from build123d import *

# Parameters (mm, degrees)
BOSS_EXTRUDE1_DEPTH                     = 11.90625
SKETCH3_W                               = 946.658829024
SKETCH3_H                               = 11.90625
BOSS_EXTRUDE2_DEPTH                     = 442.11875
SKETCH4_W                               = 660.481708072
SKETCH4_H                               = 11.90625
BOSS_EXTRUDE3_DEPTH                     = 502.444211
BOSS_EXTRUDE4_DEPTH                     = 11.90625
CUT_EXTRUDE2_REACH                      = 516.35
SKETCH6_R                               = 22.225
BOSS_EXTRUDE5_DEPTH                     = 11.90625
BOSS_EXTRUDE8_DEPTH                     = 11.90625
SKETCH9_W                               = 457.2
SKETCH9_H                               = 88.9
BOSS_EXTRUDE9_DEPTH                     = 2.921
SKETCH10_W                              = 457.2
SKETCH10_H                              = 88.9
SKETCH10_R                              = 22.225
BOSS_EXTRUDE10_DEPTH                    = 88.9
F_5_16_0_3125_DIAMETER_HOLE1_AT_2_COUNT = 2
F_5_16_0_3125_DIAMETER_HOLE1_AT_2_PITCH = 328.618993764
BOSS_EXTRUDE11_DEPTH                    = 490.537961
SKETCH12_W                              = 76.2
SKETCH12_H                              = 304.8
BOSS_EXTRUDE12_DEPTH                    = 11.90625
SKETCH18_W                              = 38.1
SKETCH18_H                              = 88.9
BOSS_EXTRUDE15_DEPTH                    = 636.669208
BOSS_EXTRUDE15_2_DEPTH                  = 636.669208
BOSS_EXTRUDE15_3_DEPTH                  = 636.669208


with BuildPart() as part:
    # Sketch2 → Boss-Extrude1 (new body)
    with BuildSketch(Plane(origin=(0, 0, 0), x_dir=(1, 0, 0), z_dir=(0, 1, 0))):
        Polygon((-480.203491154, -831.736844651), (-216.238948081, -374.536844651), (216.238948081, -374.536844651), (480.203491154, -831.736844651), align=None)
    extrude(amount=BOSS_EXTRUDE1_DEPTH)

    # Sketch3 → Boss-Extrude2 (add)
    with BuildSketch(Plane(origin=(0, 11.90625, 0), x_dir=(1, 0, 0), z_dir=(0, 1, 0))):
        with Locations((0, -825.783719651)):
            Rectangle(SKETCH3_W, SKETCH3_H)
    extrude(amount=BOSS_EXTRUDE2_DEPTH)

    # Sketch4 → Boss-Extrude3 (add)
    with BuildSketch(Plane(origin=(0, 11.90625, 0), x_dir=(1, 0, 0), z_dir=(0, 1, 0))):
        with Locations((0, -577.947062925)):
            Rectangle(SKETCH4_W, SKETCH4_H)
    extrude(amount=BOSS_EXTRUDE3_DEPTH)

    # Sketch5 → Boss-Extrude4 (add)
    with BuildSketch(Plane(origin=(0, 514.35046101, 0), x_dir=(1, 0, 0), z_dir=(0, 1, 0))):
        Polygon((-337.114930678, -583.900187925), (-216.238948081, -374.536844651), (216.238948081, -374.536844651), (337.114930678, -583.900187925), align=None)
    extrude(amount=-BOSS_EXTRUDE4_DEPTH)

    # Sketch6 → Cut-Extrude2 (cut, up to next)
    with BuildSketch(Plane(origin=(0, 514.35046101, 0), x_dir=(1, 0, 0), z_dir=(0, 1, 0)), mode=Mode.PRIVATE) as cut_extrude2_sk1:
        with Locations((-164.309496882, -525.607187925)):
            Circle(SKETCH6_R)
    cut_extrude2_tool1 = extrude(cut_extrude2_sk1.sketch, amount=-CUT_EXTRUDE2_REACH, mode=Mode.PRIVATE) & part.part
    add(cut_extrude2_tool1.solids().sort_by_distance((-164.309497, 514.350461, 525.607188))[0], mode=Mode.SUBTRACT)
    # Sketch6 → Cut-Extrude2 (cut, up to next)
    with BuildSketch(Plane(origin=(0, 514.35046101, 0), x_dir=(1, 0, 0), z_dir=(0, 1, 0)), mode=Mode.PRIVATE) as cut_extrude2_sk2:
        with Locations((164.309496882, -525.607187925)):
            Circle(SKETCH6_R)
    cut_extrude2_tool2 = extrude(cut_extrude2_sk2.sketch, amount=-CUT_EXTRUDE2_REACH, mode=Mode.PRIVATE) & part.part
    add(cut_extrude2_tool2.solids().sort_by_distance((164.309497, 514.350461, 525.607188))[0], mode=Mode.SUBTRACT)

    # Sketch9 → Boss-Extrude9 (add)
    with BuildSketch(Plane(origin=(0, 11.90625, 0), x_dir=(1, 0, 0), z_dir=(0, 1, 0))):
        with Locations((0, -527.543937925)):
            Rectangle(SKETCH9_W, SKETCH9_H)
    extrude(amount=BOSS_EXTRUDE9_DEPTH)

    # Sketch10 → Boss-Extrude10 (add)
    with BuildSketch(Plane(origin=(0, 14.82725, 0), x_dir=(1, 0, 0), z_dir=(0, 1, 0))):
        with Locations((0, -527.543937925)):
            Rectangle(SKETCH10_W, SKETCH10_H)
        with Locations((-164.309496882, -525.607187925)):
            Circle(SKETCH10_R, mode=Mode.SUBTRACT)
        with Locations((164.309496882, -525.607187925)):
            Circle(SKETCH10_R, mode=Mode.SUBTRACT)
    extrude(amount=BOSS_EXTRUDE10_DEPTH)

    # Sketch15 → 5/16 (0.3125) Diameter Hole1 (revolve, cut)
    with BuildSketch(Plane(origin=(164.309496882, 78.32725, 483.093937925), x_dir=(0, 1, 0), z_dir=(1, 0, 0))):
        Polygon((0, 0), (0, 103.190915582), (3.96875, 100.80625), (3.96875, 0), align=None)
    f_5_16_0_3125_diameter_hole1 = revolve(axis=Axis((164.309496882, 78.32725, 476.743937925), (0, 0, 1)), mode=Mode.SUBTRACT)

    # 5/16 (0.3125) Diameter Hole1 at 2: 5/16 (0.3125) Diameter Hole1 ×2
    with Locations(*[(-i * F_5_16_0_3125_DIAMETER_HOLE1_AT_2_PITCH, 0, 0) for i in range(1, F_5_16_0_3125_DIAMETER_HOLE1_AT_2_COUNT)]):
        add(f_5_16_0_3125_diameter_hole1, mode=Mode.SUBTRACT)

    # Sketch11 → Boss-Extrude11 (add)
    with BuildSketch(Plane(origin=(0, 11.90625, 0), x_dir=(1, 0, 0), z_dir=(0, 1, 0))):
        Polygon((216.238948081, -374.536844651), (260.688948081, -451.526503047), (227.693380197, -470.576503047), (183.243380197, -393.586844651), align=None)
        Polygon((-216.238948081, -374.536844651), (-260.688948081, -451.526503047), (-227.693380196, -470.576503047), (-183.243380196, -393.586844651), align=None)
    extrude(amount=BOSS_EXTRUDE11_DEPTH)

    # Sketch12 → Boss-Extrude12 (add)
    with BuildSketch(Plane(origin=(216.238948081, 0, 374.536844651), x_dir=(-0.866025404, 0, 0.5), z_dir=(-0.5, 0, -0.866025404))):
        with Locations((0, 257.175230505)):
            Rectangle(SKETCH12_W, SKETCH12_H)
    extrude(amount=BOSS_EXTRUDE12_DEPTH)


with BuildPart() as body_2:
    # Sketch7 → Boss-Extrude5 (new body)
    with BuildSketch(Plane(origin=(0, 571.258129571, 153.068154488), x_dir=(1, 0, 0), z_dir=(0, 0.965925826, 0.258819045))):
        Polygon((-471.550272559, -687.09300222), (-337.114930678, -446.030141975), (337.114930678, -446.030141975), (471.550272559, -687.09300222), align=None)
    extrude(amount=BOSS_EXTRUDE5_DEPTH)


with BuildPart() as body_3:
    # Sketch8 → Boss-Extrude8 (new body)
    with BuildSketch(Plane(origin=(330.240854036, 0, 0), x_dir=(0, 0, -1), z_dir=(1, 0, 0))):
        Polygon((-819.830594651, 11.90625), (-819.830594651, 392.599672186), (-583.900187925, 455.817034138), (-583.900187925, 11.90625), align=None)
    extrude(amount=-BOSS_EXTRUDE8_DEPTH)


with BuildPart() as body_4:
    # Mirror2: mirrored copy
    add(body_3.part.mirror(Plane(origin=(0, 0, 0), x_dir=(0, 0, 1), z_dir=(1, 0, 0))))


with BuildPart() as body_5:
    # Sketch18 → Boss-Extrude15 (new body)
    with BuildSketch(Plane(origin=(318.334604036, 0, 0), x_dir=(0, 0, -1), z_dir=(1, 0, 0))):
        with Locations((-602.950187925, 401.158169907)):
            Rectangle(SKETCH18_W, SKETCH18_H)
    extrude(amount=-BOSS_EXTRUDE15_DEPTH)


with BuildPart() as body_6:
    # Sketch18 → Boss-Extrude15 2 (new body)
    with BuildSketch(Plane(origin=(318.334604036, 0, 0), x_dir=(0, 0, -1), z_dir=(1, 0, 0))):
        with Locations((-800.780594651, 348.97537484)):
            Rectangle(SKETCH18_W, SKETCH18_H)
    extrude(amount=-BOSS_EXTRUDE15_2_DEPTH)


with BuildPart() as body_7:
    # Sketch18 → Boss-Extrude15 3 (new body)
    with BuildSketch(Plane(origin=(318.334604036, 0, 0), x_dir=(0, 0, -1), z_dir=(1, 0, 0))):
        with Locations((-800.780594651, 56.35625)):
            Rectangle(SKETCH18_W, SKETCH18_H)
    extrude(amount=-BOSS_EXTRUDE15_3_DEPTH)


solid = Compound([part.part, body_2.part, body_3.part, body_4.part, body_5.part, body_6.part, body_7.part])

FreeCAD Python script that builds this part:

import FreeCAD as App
import Part
import Sketcher
Q = App.Units.Quantity


def add_polygon(sketch, points):
    """Adds a closed chain of lines whose ends are joined by coincident constraints."""
    first, n = sketch.GeometryCount, len(points)
    for a, b in zip(points, points[1:] + points[:1]):
        sketch.addGeometry(Part.LineSegment(App.Vector(*a, 0), App.Vector(*b, 0)), False)
    for i in range(n):
        sketch.addConstraint(Sketcher.Constraint("Coincident", first + i, 2, first + (i + 1) % n, 1))

doc = App.newDocument("Part")
body = doc.addObject("PartDesign::Body", "Body")

# Sketch on XZ plane
sketch1 = body.newObject("Sketcher::SketchObject", "Sketch")
sketch1.AttachmentSupport = (doc.getObject("XZ_Plane"), [""])
sketch1.MapMode = "FlatFace"
add_polygon(sketch1, [(-216, 375), (-480, 832), (480, 832), (216, 375)])  # lines 0-3
sketch1.addConstraint([
    Sketcher.Constraint("Horizontal", 1),
    Sketcher.Constraint("Horizontal", 3),
    Sketcher.Constraint("Equal", 0, 2),
    Sketcher.Constraint("Angle", 0, Q("120 deg")),
    Sketcher.Constraint("DistanceY", 2, 2, 1, 2, Q("18 in")),
    Sketcher.Constraint("DistanceX", 1, 1, 1, 2, Q("960.406982 mm")),
    Sketcher.Constraint("DistanceX", 0, 2, -1, 1, Q("480.203491 mm")),
    Sketcher.Constraint("DistanceY", -1, 1, 0, 2, Q("831.736845 mm")),
])
pad1 = body.newObject("PartDesign::Pad", "Pad")
pad1.Profile = sketch1
pad1.Length = Q("0.46875 in")
pad1.Reversed = True

# Sketch on XZ plane
sketch2 = body.newObject("Sketcher::SketchObject", "Sketch001")
sketch2.AttachmentSupport = (doc.getObject("XZ_Plane"), [""])
sketch2.MapMode = "FlatFace"
sketch2.AttachmentOffset = App.Placement(App.Vector(0, 0, -0.46875 * 25.4), App.Rotation())
add_polygon(sketch2, [(-473, 820), (-473, 832), (473, 832), (473, 820)])  # lines 0-3
sketch2.addConstraint([
    Sketcher.Constraint("Vertical", 0),
    Sketcher.Constraint("Horizontal", 1),
    Sketcher.Constraint("Vertical", 2),
    Sketcher.Constraint("Horizontal", 3),
    Sketcher.Constraint("DistanceY", 0, 1, 0, 2, Q("0.46875 in")),
    Sketcher.Constraint("DistanceX", 1, 1, 1, 2, Q("946.658829 mm")),
    Sketcher.Constraint("DistanceX", 0, 2, -1, 1, Q("473.329415 mm")),
    Sketcher.Constraint("DistanceY", -1, 1, 0, 2, Q("831.736845 mm")),
])
pad2 = body.newObject("PartDesign::Pad", "Pad001")
pad2.Profile = sketch2
pad2.Length = Q("17.40625 in")
pad2.Reversed = True

# Sketch on XZ plane
sketch3 = body.newObject("Sketcher::SketchObject", "Sketch002")
sketch3.AttachmentSupport = (doc.getObject("XZ_Plane"), [""])
sketch3.MapMode = "FlatFace"
sketch3.AttachmentOffset = App.Placement(App.Vector(0, 0, -0.46875 * 25.4), App.Rotation())
add_polygon(sketch3, [(-330, 572), (-330, 584), (330, 584), (330, 572)])  # lines 0-3
sketch3.addConstraint([
    Sketcher.Constraint("Vertical", 0),
    Sketcher.Constraint("Horizontal", 1),
    Sketcher.Constraint("Vertical", 2),
    Sketcher.Constraint("Horizontal", 3),
    Sketcher.Constraint("DistanceY", 0, 1, 0, 2, Q("0.46875 in")),
    Sketcher.Constraint("DistanceX", 1, 1, 1, 2, Q("660.481708 mm")),
    Sketcher.Constraint("DistanceX", 0, 2, -1, 1, Q("330.240854 mm")),
    Sketcher.Constraint("DistanceY", -1, 1, 0, 2, Q("583.900188 mm")),
])
pad3 = body.newObject("PartDesign::Pad", "Pad002")
pad3.Profile = sketch3
pad3.Length = 502.444211
pad3.Reversed = True

# Sketch on XZ plane
sketch4 = body.newObject("Sketcher::SketchObject", "Sketch003")
sketch4.AttachmentSupport = (doc.getObject("XZ_Plane"), [""])
sketch4.MapMode = "FlatFace"
sketch4.AttachmentOffset = App.Placement(App.Vector(0, 0, -514.350461), App.Rotation())
add_polygon(sketch4, [(-216, 375), (-337, 584), (337, 584), (216, 375)])  # lines 0-3
sketch4.addConstraint([
    Sketcher.Constraint("Horizontal", 1),
    Sketcher.Constraint("Horizontal", 3),
    Sketcher.Constraint("Equal", 0, 2),
    Sketcher.Constraint("Angle", 0, Q("120 deg")),
    Sketcher.Constraint("DistanceX", 1, 1, 1, 2, Q("674.229861 mm")),
    Sketcher.Constraint("DistanceX", 3, 2, 3, 1, Q("432.477896 mm")),
    Sketcher.Constraint("DistanceX", 0, 2, -1, 1, Q("337.114931 mm")),
    Sketcher.Constraint("DistanceY", -1, 1, 0, 2, Q("583.900188 mm")),
])
pad4 = body.newObject("PartDesign::Pad", "Pad003")
pad4.Profile = sketch4
pad4.Length = Q("0.46875 in")

# Sketch on XZ plane
sketch5 = body.newObject("Sketcher::SketchObject", "Sketch004")
sketch5.AttachmentSupport = (doc.getObject("XZ_Plane"), [""])
sketch5.MapMode = "FlatFace"
sketch5.AttachmentOffset = App.Placement(App.Vector(0, 0, -514.350461), App.Rotation())
sketch5.addGeometry(Part.Circle(App.Vector(-164, 526, 0), App.Vector(0, 0, 1), 22), False)
sketch5.addConstraint([
    Sketcher.Constraint("Diameter", 0, Q("1.75 in")),
    Sketcher.Constraint("DistanceX", 0, 3, -1, 1, Q("164.309497 mm")),
    Sketcher.Constraint("DistanceY", -1, 1, 0, 3, Q("525.607188 mm")),
])
pocket1 = body.newObject("PartDesign::Pocket", "Pocket")
pocket1.Profile = sketch5
pocket1.Type = "UpToFirst"
pocket1.Reversed = True

# Sketch on XZ plane
sketch6 = body.newObject("Sketcher::SketchObject", "Sketch005")
sketch6.AttachmentSupport = (doc.getObject("XZ_Plane"), [""])
sketch6.MapMode = "FlatFace"
sketch6.AttachmentOffset = App.Placement(App.Vector(0, 0, -514.350461), App.Rotation())
sketch6.addGeometry(Part.Circle(App.Vector(164, 526, 0), App.Vector(0, 0, 1), 22), False)
sketch6.addConstraint([
    Sketcher.Constraint("Diameter", 0, Q("1.75 in")),
    Sketcher.Constraint("DistanceX", -1, 1, 0, 3, Q("164.309497 mm")),
    Sketcher.Constraint("DistanceY", -1, 1, 0, 3, Q("525.607188 mm")),
])
pocket2 = body.newObject("PartDesign::Pocket", "Pocket001")
pocket2.Profile = sketch6
pocket2.Type = "UpToFirst"
pocket2.Reversed = True

# Sketch on XZ plane
sketch7 = body.newObject("Sketcher::SketchObject", "Sketch006")
sketch7.AttachmentSupport = (doc.getObject("XZ_Plane"), [""])
sketch7.MapMode = "FlatFace"
sketch7.AttachmentOffset = App.Placement(App.Vector(0, 0, -0.46875 * 25.4), App.Rotation())
add_polygon(sketch7, [(-229, 483), (-229, 572), (229, 572), (229, 483)])  # lines 0-3
sketch7.addConstraint([
    Sketcher.Constraint("Vertical", 0),
    Sketcher.Constraint("Horizontal", 1),
    Sketcher.Constraint("Vertical", 2),
    Sketcher.Constraint("Horizontal", 3),
    Sketcher.Constraint("DistanceX", 1, 1, 1, 2, Q("18 in")),
    Sketcher.Constraint("DistanceY", 0, 1, 0, 2, Q("3.5 in")),
    Sketcher.Constraint("DistanceX", 0, 2, -1, 1, Q("9 in")),
    Sketcher.Constraint("DistanceY", -1, 1, 0, 2, Q("571.993938 mm")),
])
pad5 = body.newObject("PartDesign::Pad", "Pad004")
pad5.Profile = sketch7
pad5.Length = Q("0.115 in")
pad5.Reversed = True

# Sketch on XZ plane
sketch8 = body.newObject("Sketcher::SketchObject", "Sketch007")
sketch8.AttachmentSupport = (doc.getObject("XZ_Plane"), [""])
sketch8.MapMode = "FlatFace"
sketch8.AttachmentOffset = App.Placement(App.Vector(0, 0, -14.82725), App.Rotation())
add_polygon(sketch8, [(-229, 483), (-229, 572), (229, 572), (229, 483)])  # lines 0-3
sketch8.addGeometry(Part.Circle(App.Vector(-164, 526, 0), App.Vector(0, 0, 1), 22), False)  # 4
sketch8.addGeometry(Part.Circle(App.Vector(164, 526, 0), App.Vector(0, 0, 1), 22), False)  # 5
sketch8.addConstraint([
    Sketcher.Constraint("Vertical", 0),
    Sketcher.Constraint("Horizontal", 1),
    Sketcher.Constraint("Vertical", 2),
    Sketcher.Constraint("Horizontal", 3),
    Sketcher.Constraint("Equal", 4, 5),
    Sketcher.Constraint("Symmetric", 4, 3, 5, 3, -2),
    Sketcher.Constraint("Diameter", 4, Q("1.75 in")),
    Sketcher.Constraint("DistanceX", 1, 1, 1, 2, Q("18 in")),
    Sketcher.Constraint("DistanceY", 0, 1, 0, 2, Q("3.5 in")),
    Sketcher.Constraint("DistanceX", 0, 2, -1, 1, Q("9 in")),
    Sketcher.Constraint("DistanceY", 4, 3, 0, 2, Q("46.38675 mm")),
    Sketcher.Constraint("DistanceX", 4, 3, -1, 1, Q("164.309497 mm")),
    Sketcher.Constraint("DistanceY", -1, 1, 4, 3, Q("525.607188 mm")),
])
pad6 = body.newObject("PartDesign::Pad", "Pad005")
pad6.Profile = sketch8
pad6.Length = Q("3.5 in")
pad6.Reversed = True

# Sketch on YZ plane
sketch9 = body.newObject("Sketcher::SketchObject", "Sketch008")
sketch9.AttachmentSupport = (doc.getObject("YZ_Plane"), [""])
sketch9.MapMode = "FlatFace"
sketch9.AttachmentOffset = App.Placement(App.Vector(0, 0, 164.309497), App.Rotation())
add_polygon(sketch9, [(78.3, 586.3), (78.3, 483.1), (82.3, 483.1), (82.3, 583.9)])  # lines 0-3
sketch9.addGeometry(Part.LineSegment(App.Vector(78.3, 483.1, 0), App.Vector(78.3, 586.3, 0)), True)  # axis
sketch9.addConstraint([
    Sketcher.Constraint("Vertical", 0),
    Sketcher.Constraint("Horizontal", 1),
    Sketcher.Constraint("Vertical", 2),
    Sketcher.Constraint("Vertical", 4),
    Sketcher.Constraint("Coincident", 4, 1, 0, 2),
    Sketcher.Constraint("Equal", 0, 4),
    Sketcher.Constraint("Angle", 3, Q("149 deg")),
    Sketcher.Constraint("DistanceX", 1, 1, 1, 2, Q("0.15625 in")),
    Sketcher.Constraint("DistanceY", 2, 1, 2, 2, Q("3.96875 in")),
    Sketcher.Constraint("DistanceX", -1, 1, 1, 2, Q("3.24 in")),
    Sketcher.Constraint("DistanceY", -1, 1, 0, 2, Q("483.093938 mm")),
])
groove = body.newObject("PartDesign::Groove", "Groove")
groove.Profile = sketch9
groove.ReferenceAxis = (sketch9, ["Axis0"])
groove.Angle = 360
doc.recompute()

linearpattern = body.newObject("PartDesign::LinearPattern", "LinearPattern")
linearpattern.Originals = [groove]
linearpattern.Direction = (doc.getObject("X_Axis"), [""])
linearpattern.Mode = "offset"
linearpattern.Offset = 328.618994
linearpattern.Occurrences = 2
linearpattern.Reversed = True
body.Tip = linearpattern

# Sketch on XZ plane
sketch10 = body.newObject("Sketcher::SketchObject", "Sketch009")
sketch10.AttachmentSupport = (doc.getObject("XZ_Plane"), [""])
sketch10.MapMode = "FlatFace"
sketch10.AttachmentOffset = App.Placement(App.Vector(0, 0, -0.46875 * 25.4), App.Rotation())
add_polygon(sketch10, [(261, 452), (216, 375), (183, 394), (228, 471)])  # lines 0-3
add_polygon(sketch10, [(-216, 375), (-261, 452), (-228, 471), (-183, 394)])  # lines 4-7
sketch10.addConstraint([
    Sketcher.Constraint("Symmetric", 3, 2, 4, 2, -2),
    Sketcher.Constraint("Symmetric", 2, 2, 5, 2, -2),
    Sketcher.Constraint("Symmetric", 1, 2, 6, 2, -2),
    Sketcher.Constraint("Symmetric", 0, 2, 7, 2, -2),
    Sketcher.Constraint("Perpendicular", 0, 1),
    Sketcher.Constraint("Perpendicular", 1, 2),
    Sketcher.Constraint("Perpendicular", 2, 3),
    Sketcher.Constraint("Angle", 0, Q("-120 deg")),
    Sketcher.Constraint("Distance", 0, Q("3.5 in")),
    Sketcher.Constraint("Distance", 1, Q("1.5 in")),
    Sketcher.Constraint("DistanceX", -1, 1, 0, 2, Q("216.238948 mm")),
    Sketcher.Constraint("DistanceY", -1, 1, 0, 2, Q("374.536845 mm")),
])
pad7 = body.newObject("PartDesign::Pad", "Pad006")
pad7.Profile = sketch10
pad7.Length = 490.537961
pad7.Reversed = True

# Sketch on an angled plane
sketch11 = body.newObject("Sketcher::SketchObject", "Sketch010")
sketch11.Placement = App.Placement(App.Vector(216.238948, 0, 374.536845), App.Rotation(App.Vector(-0.866025404, 0, 0.5), App.Vector(0, 1, 0), App.Vector(-0.5, 0, -0.866025404), "ZXY"))
add_polygon(sketch11, [(-38, 410), (-38, 105), (38, 105), (38, 410)])  # lines 0-3
sketch11.addConstraint([
    Sketcher.Constraint("Vertical", 0),
    Sketcher.Constraint("Horizontal", 1),
    Sketcher.Constraint("Vertical", 2),
    Sketcher.Constraint("Horizontal", 3),
    Sketcher.Constraint("DistanceX", 1, 1, 1, 2, Q("3 in")),
    Sketcher.Constraint("DistanceY", 0, 2, 0, 1, Q("12 in")),
    Sketcher.Constraint("DistanceX", 0, 2, -1, 1, Q("1.5 in")),
    Sketcher.Constraint("DistanceY", -1, 1, 0, 2, Q("104.775231 mm")),
])
pad8 = body.newObject("PartDesign::Pad", "Pad007")
pad8.Profile = sketch11
pad8.Length = Q("0.46875 in")
body2 = doc.addObject("PartDesign::Body", "Body001")

# Sketch on an angled plane
sketch12 = body2.newObject("Sketcher::SketchObject", "Sketch011")
sketch12.Placement = App.Placement(App.Vector(0, 571.25813, 153.068154), App.Rotation(App.Vector(1, 0, 0), App.Vector(0, 0.258819045, -0.965925826), App.Vector(0, 0.965925826, 0.258819045), "ZXY"))
add_polygon(sketch12, [(-337, -446), (-472, -687), (472, -687), (337, -446)])  # lines 0-3
sketch12.addConstraint([
    Sketcher.Constraint("Horizontal", 1),
    Sketcher.Constraint("Horizontal", 3),
    Sketcher.Constraint("Equal", 0, 2),
    Sketcher.Constraint("DistanceX", 3, 2, 3, 1, Q("674.229861 mm")),
    Sketcher.Constraint("DistanceY", 0, 2, -1, 1, Q("687.093002 mm")),
    Sketcher.Constraint("Distance", 0, Q("276.014789 mm")),
    Sketcher.Constraint("DistanceX", 1, 1, 1, 2, Q("943.100545 mm")),
    Sketcher.Constraint("DistanceX", -1, 1, 2, 2, Q("337.114931 mm")),
])
pad9 = body2.newObject("PartDesign::Pad", "Pad008")
pad9.Profile = sketch12
pad9.Length = Q("0.46875 in")
body3 = doc.addObject("PartDesign::Body", "Body002")

# Sketch on YZ plane
sketch13 = body3.newObject("Sketcher::SketchObject", "Sketch012")
sketch13.AttachmentSupport = (doc.getObject("YZ_Plane002"), [""])
sketch13.MapMode = "FlatFace"
sketch13.AttachmentOffset = App.Placement(App.Vector(0, 0, 330.240854), App.Rotation())
add_polygon(sketch13, [(393, 820), (12, 820), (12, 584), (456, 584)])  # lines 0-3
sketch13.addConstraint([
    Sketcher.Constraint("Horizontal", 0),
    Sketcher.Constraint("Vertical", 1),
    Sketcher.Constraint("Horizontal", 2),
    Sketcher.Constraint("Angle", 3, Q("105 deg")),
    Sketcher.Constraint("DistanceX", -1, 1, 0, 2, Q("0.46875 in")),
    Sketcher.Constraint("Distance", 3, Q("244.25313 mm")),
    Sketcher.Constraint("DistanceX", 0, 2, 0, 1, Q("380.693422 mm")),
    Sketcher.Constraint("DistanceY", -1, 1, 0, 2, Q("819.830595 mm")),
])
pad10 = body3.newObject("PartDesign::Pad", "Pad009")
pad10.Profile = sketch13
pad10.Length = Q("0.46875 in")
pad10.Reversed = True
body4 = doc.addObject("PartDesign::Body", "Body003")
doc.recompute()

mirroring = doc.addObject("Part::Mirroring", "Mirroring")
mirroring.Source = body3
mirroring.Base = App.Vector(0, 0, 0)
mirroring.Normal = App.Vector(1, 0, 0)
body4.BaseFeature = mirroring
doc.recompute()
body5 = doc.addObject("PartDesign::Body", "Body004")

# Sketch on YZ plane
sketch14 = body5.newObject("Sketcher::SketchObject", "Sketch013")
sketch14.AttachmentSupport = (doc.getObject("YZ_Plane004"), [""])
sketch14.MapMode = "FlatFace"
sketch14.AttachmentOffset = App.Placement(App.Vector(0, 0, 318.334604), App.Rotation())
add_polygon(sketch14, [(446, 622), (357, 622), (357, 584), (446, 584)])  # lines 0-3
sketch14.addConstraint([
    Sketcher.Constraint("Horizontal", 0),
    Sketcher.Constraint("Vertical", 1),
    Sketcher.Constraint("Horizontal", 2),
    Sketcher.Constraint("Vertical", 3),
    Sketcher.Constraint("DistanceX", 0, 2, 0, 1, Q("3.5 in")),
    Sketcher.Constraint("DistanceY", 1, 2, 1, 1, Q("1.5 in")),
    Sketcher.Constraint("DistanceX", -1, 1, 0, 2, Q("356.70817 mm")),
    Sketcher.Constraint("DistanceY", -1, 1, 0, 2, Q("622.000188 mm")),
])
pad11 = body5.newObject("PartDesign::Pad", "Pad010")
pad11.Profile = sketch14
pad11.Length = 636.669208
pad11.Reversed = True
body6 = doc.addObject("PartDesign::Body", "Body005")

# Sketch on YZ plane
sketch15 = body6.newObject("Sketcher::SketchObject", "Sketch014")
sketch15.AttachmentSupport = (doc.getObject("YZ_Plane005"), [""])
sketch15.MapMode = "FlatFace"
sketch15.AttachmentOffset = App.Placement(App.Vector(0, 0, 318.334604), App.Rotation())
add_polygon(sketch15, [(393, 820), (305, 820), (305, 782), (393, 782)])  # lines 0-3
sketch15.addConstraint([
    Sketcher.Constraint("Horizontal", 0),
    Sketcher.Constraint("Vertical", 1),
    Sketcher.Constraint("Horizontal", 2),
    Sketcher.Constraint("Vertical", 3),
    Sketcher.Constraint("DistanceX", 0, 2, 0, 1, Q("3.5 in")),
    Sketcher.Constraint("DistanceY", 1, 2, 1, 1, Q("1.5 in")),
    Sketcher.Constraint("DistanceX", -1, 1, 0, 2, Q("304.525375 mm")),
    Sketcher.Constraint("DistanceY", -1, 1, 0, 2, Q("819.830595 mm")),
])
pad12 = body6.newObject("PartDesign::Pad", "Pad011")
pad12.Profile = sketch15
pad12.Length = 636.669208
pad12.Reversed = True
body7 = doc.addObject("PartDesign::Body", "Body006")

# Sketch on YZ plane
sketch16 = body7.newObject("Sketcher::SketchObject", "Sketch015")
sketch16.AttachmentSupport = (doc.getObject("YZ_Plane006"), [""])
sketch16.MapMode = "FlatFace"
sketch16.AttachmentOffset = App.Placement(App.Vector(0, 0, 318.334604), App.Rotation())
add_polygon(sketch16, [(101, 820), (12, 820), (12, 782), (101, 782)])  # lines 0-3
sketch16.addConstraint([
    Sketcher.Constraint("Horizontal", 0),
    Sketcher.Constraint("Vertical", 1),
    Sketcher.Constraint("Horizontal", 2),
    Sketcher.Constraint("Vertical", 3),
    Sketcher.Constraint("DistanceX", 0, 2, 0, 1, Q("3.5 in")),
    Sketcher.Constraint("DistanceY", 1, 2, 1, 1, Q("1.5 in")),
    Sketcher.Constraint("DistanceX", -1, 1, 0, 2, Q("0.46875 in")),
    Sketcher.Constraint("DistanceY", -1, 1, 0, 2, Q("819.830595 mm")),
])
pad13 = body7.newObject("PartDesign::Pad", "Pad012")
pad13.Profile = sketch16
pad13.Length = 636.669208
pad13.Reversed = True
mirroring.Visibility = False

doc.recompute()
